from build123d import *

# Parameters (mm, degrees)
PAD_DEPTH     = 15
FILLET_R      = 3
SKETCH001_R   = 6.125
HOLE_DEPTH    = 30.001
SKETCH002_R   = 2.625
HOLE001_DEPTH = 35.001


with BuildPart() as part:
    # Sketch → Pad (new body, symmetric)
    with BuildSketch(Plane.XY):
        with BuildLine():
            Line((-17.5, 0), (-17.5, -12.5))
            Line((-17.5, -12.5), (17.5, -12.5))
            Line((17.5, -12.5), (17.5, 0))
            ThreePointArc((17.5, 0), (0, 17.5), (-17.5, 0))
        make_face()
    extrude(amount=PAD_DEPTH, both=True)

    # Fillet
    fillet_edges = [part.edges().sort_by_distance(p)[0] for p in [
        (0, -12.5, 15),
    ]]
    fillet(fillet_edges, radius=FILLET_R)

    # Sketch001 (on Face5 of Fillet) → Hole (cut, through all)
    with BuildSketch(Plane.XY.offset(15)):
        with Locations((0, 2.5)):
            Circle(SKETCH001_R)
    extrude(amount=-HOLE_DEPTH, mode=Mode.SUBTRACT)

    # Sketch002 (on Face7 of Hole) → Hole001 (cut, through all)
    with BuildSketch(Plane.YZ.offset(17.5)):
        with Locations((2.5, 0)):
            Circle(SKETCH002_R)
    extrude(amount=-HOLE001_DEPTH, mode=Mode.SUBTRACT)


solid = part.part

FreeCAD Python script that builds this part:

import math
import FreeCAD as App
import Part
import Sketcher
from FreeCAD import Vector
Q = App.Units.Quantity


def edges_at(feature, points):
    """Names of the edges that pass closest to the given points."""
    edges = feature.Shape.Edges
    near = lambda p: min(range(len(edges)), key=lambda i: edges[i].distToShape(Part.Vertex(*p))[0])
    return sorted({f"Edge{near(p) + 1}" for p in points})

doc = App.newDocument("Part")
params = doc.addObject("Spreadsheet::Sheet", "Params")
for row, (alias, value) in enumerate([
    ("sketch1_radius", "17.5 mm"),
    ("sketch1_height", "12.5 mm"),
    ("pad1_length", "30 mm"),
    ("fillet_radius", "3 mm"),
    ("sketch2_diameter", "12.25 mm"),
    ("sketch3_diameter", "5.25 mm"),
], start=1):
    params.set(f"A{row}", alias)
    params.set(f"B{row}", "=" + value)
    params.setAlias(f"B{row}", alias)

body = doc.addObject("PartDesign::Body", "Body")

# Sketch on XY plane
sketch1 = doc.addObject("Sketcher::SketchObject", "Sketch")
body.addObject(sketch1)
sketch1.AttachmentSupport = (doc.XY_Plane, [""])
sketch1.MapMode = "FlatFace"
sketch1.addGeometry([
    Part.LineSegment(Vector(-18, 0, 0), Vector(-18, -12, 0)),
    Part.LineSegment(Vector(-18, -12, 0), Vector(18, -12, 0)),
    Part.LineSegment(Vector(18, -12, 0), Vector(18, 0, 0)),
    Part.ArcOfCircle(Part.Circle(Vector(0, 0, 0), Vector(0, 0, 1), 18), math.radians(0), math.radians(180)),
], False)
sketch1.addConstraint([
    Sketcher.Constraint("Coincident", 0, 2, 1, 1),
    Sketcher.Constraint("Coincident", 1, 2, 2, 1),
    Sketcher.Constraint("Tangent", 2, 2, 3, 1),
    Sketcher.Constraint("Tangent", 3, 2, 0, 1),
    Sketcher.Constraint("Vertical", 0),
    Sketcher.Constraint("Horizontal", 1),
    Sketcher.Constraint("Vertical", 2),
    Sketcher.Constraint("Coincident", 3, 3, -1, 1),
    Sketcher.Constraint("Radius", 3, Q("17.5 mm")),
    Sketcher.Constraint("DistanceY", 0, 2, 0, 1, Q("12.5 mm")),
])
sketch1.setExpression("Constraints[8]", "Params.sketch1_radius")
sketch1.setExpression("Constraints[9]", "Params.sketch1_height")
pad1 = doc.addObject("PartDesign::Pad", "Pad")
body.addObject(pad1)
pad1.Profile = sketch1
pad1.setExpression("Length", "Params.pad1_length")
pad1.Midplane = True
doc.recompute()

fillet = doc.addObject("PartDesign::Fillet", "Fillet")
body.addObject(fillet)
fillet.Base = (pad1, edges_at(pad1, [(0, -12.5, 15)]))
fillet.setExpression("Radius", "Params.fillet_radius")

# Sketch on XY plane
sketch2 = doc.addObject("Sketcher::SketchObject", "Sketch001")
body.addObject(sketch2)
sketch2.AttachmentSupport = (doc.XY_Plane, [""])
sketch2.MapMode = "FlatFace"
sketch2.AttachmentOffset = App.Placement(Vector(0, 0, 15), App.Rotation())
sketch2.addGeometry(Part.Circle(Vector(0, 2, 0), Vector(0, 0, 1), 6), False)
sketch2.addConstraint([
    Sketcher.Constraint("PointOnObject", 0, 3, -2),
    Sketcher.Constraint("Diameter", 0, Q("12.25 mm")),
    Sketcher.Constraint("DistanceY", -1, 1, 0, 3, Q("2.5 mm")),
])
sketch2.setExpression("Constraints[1]", "Params.sketch2_diameter")
pocket1 = doc.addObject("PartDesign::Pocket", "Pocket")
body.addObject(pocket1)
pocket1.Profile = sketch2
pocket1.Type = "ThroughAll"

# Sketch on YZ plane
sketch3 = doc.addObject("Sketcher::SketchObject", "Sketch002")
body.addObject(sketch3)
sketch3.AttachmentSupport = (doc.YZ_Plane, [""])
sketch3.MapMode = "FlatFace"
sketch3.AttachmentOffset = App.Placement(Vector(0, 0, 17.5), App.Rotation())
sketch3.addGeometry(Part.Circle(Vector(2.5, 0, 0), Vector(0, 0, 1), 2.6), False)
sketch3.addConstraint([
    Sketcher.Constraint("PointOnObject", 0, 3, -1),
    Sketcher.Constraint("Diameter", 0, Q("5.25 mm")),
    Sketcher.Constraint("DistanceX", -1, 1, 0, 3, Q("2.5 mm")),
])
sketch3.setExpression("Constraints[1]", "Params.sketch3_diameter")
pocket2 = doc.addObject("PartDesign::Pocket", "Pocket001")
body.addObject(pocket2)
pocket2.Profile = sketch3
pocket2.Type = "ThroughAll"

doc.recompute()
